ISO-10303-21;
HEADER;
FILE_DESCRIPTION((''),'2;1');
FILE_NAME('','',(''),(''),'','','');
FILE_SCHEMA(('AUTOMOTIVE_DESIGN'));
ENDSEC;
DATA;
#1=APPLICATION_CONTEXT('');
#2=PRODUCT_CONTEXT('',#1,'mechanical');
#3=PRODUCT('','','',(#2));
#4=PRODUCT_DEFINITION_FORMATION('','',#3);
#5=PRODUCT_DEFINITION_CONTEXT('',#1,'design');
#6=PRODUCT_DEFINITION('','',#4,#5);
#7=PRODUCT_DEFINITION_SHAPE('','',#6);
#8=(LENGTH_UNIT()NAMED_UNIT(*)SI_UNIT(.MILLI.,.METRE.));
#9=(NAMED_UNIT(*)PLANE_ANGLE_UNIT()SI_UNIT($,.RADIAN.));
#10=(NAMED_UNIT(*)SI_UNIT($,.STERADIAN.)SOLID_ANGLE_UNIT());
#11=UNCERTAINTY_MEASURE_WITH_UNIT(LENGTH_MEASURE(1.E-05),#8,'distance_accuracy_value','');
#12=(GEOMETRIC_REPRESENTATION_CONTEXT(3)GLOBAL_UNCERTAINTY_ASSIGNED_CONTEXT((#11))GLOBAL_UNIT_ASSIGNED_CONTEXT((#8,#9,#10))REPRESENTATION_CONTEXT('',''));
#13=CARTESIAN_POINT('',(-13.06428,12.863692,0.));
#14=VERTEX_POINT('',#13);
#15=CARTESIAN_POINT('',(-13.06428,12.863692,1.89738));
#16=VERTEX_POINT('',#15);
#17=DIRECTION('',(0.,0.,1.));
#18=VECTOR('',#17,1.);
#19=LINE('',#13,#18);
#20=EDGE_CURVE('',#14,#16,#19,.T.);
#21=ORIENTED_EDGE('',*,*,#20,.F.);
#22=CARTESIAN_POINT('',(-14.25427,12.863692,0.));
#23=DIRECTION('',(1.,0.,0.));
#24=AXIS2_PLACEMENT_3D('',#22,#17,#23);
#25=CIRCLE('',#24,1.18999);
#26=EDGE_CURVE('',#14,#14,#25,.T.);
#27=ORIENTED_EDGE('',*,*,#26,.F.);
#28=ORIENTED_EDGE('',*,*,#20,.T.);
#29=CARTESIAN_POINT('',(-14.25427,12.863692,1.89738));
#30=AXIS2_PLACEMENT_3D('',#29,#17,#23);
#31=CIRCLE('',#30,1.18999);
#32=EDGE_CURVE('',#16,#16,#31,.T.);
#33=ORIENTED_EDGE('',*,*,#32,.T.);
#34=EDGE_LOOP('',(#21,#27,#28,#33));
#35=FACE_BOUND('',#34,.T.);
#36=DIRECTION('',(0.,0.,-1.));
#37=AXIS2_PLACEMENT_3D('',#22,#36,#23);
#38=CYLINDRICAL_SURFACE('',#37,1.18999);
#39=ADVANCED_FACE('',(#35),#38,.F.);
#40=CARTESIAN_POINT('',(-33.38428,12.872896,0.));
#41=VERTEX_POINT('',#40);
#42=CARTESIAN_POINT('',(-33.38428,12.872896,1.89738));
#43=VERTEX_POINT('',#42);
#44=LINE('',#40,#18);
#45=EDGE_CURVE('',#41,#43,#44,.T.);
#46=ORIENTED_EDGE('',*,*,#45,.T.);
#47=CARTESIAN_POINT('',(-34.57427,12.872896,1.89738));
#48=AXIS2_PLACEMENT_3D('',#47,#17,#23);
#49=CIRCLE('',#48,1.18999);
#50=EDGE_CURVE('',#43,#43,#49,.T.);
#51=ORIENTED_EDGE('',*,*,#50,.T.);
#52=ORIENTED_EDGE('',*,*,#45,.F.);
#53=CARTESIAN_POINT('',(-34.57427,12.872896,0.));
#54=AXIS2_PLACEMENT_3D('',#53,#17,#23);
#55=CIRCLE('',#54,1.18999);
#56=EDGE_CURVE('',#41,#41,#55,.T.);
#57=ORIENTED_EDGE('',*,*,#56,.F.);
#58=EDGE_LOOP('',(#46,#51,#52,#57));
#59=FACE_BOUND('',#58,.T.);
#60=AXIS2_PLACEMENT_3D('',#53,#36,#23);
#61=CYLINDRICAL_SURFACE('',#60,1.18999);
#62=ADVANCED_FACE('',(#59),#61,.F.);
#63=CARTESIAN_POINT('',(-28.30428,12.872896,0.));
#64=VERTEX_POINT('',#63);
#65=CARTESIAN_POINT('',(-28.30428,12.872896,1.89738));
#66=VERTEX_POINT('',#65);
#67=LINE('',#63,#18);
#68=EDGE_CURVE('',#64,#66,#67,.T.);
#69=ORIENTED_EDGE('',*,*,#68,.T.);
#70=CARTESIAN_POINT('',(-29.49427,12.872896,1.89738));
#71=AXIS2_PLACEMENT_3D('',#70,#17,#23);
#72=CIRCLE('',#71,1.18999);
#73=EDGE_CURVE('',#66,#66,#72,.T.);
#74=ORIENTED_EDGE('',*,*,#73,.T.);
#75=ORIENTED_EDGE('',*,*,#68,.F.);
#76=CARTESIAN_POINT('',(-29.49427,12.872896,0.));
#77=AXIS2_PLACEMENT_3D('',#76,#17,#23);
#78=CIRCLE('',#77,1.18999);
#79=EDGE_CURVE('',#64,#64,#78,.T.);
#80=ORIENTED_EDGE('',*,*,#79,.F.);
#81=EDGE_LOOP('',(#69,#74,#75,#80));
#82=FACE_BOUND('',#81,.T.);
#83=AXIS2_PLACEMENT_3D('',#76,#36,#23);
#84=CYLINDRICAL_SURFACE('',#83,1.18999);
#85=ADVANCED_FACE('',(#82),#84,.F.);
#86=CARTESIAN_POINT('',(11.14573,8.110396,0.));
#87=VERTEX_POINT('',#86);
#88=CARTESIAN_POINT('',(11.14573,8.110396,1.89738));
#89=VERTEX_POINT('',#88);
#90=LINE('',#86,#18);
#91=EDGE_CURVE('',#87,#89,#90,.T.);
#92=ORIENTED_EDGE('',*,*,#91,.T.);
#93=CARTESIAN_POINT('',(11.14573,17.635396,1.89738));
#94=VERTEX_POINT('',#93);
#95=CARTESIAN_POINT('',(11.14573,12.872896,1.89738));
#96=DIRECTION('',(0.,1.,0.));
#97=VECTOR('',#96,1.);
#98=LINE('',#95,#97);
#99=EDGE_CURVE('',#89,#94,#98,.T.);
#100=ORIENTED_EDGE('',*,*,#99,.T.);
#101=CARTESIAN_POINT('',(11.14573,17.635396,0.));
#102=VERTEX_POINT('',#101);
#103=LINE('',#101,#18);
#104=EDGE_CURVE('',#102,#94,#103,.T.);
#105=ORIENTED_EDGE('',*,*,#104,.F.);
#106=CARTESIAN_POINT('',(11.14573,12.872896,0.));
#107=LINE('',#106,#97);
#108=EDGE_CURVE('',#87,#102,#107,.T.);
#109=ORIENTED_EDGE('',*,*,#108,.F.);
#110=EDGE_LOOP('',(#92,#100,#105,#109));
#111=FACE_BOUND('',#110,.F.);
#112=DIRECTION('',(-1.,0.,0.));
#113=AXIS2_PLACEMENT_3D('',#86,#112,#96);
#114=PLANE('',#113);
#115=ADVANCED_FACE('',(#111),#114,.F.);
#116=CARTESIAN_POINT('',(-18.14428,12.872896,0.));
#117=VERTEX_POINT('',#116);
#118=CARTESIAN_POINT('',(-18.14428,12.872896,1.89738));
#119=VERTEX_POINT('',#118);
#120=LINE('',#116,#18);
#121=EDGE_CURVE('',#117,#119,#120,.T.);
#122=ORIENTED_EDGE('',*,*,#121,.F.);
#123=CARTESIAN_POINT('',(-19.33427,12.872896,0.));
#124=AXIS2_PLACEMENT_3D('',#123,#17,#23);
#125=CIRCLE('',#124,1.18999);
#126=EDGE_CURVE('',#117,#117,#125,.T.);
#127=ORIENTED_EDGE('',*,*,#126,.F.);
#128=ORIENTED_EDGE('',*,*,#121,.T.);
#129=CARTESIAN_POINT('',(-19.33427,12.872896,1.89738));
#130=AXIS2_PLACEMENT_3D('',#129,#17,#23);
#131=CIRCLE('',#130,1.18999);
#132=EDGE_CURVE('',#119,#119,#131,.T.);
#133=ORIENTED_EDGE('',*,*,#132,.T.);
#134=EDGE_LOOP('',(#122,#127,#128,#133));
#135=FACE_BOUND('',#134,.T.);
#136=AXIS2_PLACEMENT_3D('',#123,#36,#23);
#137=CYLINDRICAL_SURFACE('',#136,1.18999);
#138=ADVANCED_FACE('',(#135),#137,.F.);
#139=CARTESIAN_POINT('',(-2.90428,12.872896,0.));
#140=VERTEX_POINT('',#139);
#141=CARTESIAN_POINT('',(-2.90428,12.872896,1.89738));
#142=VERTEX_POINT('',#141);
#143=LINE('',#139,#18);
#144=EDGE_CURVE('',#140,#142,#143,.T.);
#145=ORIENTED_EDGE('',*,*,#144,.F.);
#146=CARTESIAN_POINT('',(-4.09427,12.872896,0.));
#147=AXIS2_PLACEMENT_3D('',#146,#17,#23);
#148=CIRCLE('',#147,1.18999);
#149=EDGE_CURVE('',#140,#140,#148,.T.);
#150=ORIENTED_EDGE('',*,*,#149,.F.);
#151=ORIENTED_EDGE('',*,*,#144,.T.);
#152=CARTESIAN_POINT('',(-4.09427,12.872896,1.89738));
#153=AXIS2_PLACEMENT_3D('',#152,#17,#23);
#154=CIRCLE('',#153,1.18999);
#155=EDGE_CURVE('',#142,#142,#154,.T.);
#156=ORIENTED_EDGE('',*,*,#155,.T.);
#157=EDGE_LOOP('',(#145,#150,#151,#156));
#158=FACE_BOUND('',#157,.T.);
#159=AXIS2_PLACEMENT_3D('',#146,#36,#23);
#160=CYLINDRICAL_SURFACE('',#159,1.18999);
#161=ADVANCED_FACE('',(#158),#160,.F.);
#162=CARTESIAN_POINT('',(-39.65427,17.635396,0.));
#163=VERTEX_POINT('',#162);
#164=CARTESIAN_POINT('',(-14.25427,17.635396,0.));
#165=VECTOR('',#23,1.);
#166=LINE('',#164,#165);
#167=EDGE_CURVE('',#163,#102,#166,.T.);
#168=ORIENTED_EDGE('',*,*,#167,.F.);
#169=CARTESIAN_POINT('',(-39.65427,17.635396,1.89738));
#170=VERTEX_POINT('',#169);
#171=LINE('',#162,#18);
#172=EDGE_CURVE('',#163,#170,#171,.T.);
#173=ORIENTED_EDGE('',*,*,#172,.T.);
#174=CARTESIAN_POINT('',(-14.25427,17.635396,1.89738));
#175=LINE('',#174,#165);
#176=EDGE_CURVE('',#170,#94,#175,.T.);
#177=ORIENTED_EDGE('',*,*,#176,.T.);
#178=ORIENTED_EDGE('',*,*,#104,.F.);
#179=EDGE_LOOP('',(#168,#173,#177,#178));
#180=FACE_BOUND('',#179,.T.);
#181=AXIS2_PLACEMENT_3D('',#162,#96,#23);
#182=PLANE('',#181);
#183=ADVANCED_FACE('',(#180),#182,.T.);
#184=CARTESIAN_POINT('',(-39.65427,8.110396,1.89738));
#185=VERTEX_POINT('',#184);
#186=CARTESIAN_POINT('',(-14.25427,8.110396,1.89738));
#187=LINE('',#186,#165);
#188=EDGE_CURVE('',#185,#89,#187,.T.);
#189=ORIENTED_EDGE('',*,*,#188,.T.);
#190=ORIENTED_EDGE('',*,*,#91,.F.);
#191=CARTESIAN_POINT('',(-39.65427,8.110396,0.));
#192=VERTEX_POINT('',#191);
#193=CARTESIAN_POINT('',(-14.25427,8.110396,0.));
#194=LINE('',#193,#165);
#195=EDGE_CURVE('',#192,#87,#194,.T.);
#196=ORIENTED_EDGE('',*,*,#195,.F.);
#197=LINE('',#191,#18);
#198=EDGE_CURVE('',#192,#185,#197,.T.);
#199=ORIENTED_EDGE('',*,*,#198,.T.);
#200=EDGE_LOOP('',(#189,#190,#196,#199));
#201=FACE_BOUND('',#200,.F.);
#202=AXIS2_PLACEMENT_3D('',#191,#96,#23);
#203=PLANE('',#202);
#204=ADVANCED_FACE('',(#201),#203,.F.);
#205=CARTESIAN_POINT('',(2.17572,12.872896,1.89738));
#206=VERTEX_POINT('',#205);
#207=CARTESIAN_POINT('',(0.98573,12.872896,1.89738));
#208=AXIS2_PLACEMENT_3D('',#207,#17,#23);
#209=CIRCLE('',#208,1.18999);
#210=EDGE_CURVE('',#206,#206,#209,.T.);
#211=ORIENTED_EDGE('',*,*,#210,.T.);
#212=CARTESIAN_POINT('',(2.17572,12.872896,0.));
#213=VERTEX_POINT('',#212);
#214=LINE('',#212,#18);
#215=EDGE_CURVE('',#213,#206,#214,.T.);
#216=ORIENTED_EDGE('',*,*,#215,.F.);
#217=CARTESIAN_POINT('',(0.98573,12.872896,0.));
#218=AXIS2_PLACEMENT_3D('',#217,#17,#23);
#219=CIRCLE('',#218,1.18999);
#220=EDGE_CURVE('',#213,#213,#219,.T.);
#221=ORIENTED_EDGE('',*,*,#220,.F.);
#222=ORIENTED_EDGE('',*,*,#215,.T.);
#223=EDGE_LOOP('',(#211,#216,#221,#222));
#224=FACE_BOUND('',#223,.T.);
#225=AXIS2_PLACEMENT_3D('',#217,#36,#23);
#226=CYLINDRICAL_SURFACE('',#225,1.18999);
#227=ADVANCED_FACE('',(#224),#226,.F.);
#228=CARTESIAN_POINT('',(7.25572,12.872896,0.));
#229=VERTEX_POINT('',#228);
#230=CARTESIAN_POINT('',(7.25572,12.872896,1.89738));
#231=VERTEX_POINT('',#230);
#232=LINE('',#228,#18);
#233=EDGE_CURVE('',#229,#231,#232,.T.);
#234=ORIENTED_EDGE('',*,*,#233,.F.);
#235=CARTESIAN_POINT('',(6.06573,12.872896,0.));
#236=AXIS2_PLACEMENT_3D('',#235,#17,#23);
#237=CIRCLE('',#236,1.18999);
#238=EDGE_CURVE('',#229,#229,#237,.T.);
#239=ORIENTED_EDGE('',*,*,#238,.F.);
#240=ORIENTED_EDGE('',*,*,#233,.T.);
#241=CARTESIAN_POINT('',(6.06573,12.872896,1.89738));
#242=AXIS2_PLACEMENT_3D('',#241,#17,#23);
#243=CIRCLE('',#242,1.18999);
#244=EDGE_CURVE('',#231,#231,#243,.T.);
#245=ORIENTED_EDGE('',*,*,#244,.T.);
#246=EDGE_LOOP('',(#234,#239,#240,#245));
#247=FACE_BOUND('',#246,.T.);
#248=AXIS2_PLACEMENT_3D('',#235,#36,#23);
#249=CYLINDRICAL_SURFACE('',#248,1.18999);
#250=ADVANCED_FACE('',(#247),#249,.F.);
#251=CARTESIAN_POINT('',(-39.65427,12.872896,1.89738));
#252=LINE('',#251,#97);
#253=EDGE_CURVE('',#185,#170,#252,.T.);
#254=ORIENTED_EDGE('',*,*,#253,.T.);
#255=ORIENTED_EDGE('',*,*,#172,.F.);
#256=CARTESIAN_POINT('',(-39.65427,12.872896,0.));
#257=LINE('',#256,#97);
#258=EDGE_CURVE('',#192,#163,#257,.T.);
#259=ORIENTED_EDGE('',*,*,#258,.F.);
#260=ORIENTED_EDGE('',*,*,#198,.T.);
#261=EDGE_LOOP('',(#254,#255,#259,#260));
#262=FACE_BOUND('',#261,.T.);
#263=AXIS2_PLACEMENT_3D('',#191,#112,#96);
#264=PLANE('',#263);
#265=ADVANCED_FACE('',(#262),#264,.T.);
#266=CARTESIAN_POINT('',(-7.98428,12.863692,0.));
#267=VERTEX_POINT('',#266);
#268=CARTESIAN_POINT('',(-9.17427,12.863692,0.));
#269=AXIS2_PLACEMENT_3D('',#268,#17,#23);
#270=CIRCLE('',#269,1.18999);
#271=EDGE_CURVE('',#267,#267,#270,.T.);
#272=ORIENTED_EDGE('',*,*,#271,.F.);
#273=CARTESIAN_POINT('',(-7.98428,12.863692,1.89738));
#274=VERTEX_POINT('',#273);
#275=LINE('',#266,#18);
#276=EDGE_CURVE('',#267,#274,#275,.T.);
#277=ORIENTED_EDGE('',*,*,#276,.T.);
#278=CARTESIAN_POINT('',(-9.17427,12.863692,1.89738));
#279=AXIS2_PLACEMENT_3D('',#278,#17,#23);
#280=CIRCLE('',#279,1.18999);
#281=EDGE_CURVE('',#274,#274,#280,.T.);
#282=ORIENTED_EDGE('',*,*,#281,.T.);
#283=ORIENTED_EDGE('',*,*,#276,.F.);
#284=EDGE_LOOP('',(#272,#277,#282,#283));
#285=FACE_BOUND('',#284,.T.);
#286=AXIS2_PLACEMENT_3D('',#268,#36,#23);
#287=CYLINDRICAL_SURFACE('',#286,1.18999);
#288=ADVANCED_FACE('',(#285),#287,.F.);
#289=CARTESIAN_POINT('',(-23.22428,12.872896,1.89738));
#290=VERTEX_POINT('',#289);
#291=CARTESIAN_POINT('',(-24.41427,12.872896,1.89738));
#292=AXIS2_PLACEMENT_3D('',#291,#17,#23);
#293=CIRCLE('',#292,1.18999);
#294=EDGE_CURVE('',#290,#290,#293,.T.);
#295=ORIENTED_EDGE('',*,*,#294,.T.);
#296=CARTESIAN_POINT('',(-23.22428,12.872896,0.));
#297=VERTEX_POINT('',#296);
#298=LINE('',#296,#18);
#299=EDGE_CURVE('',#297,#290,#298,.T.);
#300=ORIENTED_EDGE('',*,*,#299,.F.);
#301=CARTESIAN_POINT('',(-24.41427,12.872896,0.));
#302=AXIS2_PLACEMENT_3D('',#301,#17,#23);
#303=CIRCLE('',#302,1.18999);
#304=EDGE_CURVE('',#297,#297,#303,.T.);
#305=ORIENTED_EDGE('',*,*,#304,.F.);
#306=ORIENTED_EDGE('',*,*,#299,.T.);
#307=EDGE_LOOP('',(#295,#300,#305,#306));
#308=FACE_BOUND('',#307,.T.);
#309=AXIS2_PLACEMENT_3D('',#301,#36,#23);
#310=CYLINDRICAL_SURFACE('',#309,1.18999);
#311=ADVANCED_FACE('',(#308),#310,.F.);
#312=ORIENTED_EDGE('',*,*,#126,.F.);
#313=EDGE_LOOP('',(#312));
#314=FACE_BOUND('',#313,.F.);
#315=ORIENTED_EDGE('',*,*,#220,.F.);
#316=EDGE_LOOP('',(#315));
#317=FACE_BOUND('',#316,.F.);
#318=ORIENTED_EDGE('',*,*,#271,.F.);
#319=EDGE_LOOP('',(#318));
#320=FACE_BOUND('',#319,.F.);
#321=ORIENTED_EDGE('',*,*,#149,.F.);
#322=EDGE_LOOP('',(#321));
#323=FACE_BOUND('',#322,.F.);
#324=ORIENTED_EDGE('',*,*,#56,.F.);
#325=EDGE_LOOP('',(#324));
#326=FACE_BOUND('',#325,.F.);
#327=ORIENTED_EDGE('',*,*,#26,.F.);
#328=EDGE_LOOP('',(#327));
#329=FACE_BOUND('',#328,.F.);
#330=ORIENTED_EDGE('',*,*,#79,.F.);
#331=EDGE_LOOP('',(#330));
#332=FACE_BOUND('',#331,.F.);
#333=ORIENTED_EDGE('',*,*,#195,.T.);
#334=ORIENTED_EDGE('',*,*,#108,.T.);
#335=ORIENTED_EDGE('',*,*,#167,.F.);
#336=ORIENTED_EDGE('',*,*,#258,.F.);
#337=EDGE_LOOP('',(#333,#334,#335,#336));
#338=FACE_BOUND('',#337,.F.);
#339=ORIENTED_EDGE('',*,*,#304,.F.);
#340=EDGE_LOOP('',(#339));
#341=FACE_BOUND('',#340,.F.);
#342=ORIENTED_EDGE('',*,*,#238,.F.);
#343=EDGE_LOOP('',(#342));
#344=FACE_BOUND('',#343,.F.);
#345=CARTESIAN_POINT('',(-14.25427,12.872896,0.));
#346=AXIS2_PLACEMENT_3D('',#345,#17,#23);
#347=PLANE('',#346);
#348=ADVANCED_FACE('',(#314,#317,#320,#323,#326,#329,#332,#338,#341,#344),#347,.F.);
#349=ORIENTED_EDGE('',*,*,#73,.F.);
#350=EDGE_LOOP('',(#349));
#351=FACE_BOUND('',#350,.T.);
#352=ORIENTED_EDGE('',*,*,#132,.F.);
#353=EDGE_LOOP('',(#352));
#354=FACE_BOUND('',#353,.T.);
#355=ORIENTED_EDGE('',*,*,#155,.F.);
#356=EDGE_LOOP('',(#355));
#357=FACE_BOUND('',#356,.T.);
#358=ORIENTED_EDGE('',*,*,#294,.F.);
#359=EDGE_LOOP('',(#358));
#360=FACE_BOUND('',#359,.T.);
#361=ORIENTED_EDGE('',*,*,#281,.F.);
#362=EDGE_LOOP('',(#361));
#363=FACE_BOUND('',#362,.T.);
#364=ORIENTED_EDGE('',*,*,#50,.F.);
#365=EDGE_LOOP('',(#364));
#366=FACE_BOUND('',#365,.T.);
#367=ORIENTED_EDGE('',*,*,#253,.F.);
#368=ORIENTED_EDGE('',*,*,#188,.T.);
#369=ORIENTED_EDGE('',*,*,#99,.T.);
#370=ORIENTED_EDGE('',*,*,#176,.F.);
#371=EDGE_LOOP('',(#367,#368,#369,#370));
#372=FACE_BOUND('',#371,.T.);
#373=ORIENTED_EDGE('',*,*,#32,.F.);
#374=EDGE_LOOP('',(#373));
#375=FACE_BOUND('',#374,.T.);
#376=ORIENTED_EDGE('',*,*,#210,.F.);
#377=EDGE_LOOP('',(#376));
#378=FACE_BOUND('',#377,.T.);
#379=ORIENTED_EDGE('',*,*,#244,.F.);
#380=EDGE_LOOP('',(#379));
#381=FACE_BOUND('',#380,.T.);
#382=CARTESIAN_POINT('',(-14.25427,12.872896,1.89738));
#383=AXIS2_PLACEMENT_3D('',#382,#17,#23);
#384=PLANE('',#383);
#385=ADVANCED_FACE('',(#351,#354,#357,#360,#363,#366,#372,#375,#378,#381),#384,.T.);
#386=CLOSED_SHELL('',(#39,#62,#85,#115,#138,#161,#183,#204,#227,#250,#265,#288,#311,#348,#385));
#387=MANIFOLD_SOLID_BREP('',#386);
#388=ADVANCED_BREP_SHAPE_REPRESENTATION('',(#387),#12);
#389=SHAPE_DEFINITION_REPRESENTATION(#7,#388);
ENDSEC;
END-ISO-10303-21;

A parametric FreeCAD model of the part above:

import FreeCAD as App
import Part
import Sketcher
from FreeCAD import Vector
Q = App.Units.Quantity


def add_polygon(sketch, points):
    """Adds a closed chain of lines whose ends are joined by coincident constraints."""
    first, n = sketch.GeometryCount, len(points)
    for a, b in zip(points, points[1:] + points[:1]):
        sketch.addGeometry(Part.LineSegment(App.Vector(*a, 0), App.Vector(*b, 0)), False)
    for i in range(n):
        sketch.addConstraint(Sketcher.Constraint("Coincident", first + i, 2, first + (i + 1) % n, 1))

doc = App.newDocument("Part")
body = doc.addObject("PartDesign::Body", "Body")

# Sketch on XY plane
sketch1 = body.newObject("Sketcher::SketchObject", "Sketch")
sketch1.AttachmentSupport = (doc.getObject("XY_Plane"), [""])
sketch1.MapMode = "FlatFace"
add_polygon(sketch1, [(-39.65427, 17.635396), (-39.65427, 8.110396), (11.14573, 8.110396), (11.14573, 17.635396)])  # lines 0-3
sketch1.addGeometry(Part.Circle(Vector(-14.25427, 12.863692, 0), Vector(0, 0, 1), 1.18999), False)  # 4
sketch1.addGeometry(Part.Circle(Vector(-9.17427, 12.863692, 0), Vector(0, 0, 1), 1.18999), False)  # 5
sketch1.addGeometry(Part.Circle(Vector(-34.57427, 12.872896, 0), Vector(0, 0, 1), 1.18999), False)  # 6
sketch1.addGeometry(Part.Circle(Vector(-29.49427, 12.872896, 0), Vector(0, 0, 1), 1.18999), False)  # 7
sketch1.addGeometry(Part.Circle(Vector(-24.41427, 12.872896, 0), Vector(0, 0, 1), 1.18999), False)  # 8
sketch1.addGeometry(Part.Circle(Vector(-19.33427, 12.872896, 0), Vector(0, 0, 1), 1.18999), False)  # 9
sketch1.addGeometry(Part.Circle(Vector(-4.09427, 12.872896, 0), Vector(0, 0, 1), 1.18999), False)  # 10
sketch1.addGeometry(Part.Circle(Vector(0.98573, 12.872896, 0), Vector(0, 0, 1), 1.18999), False)  # 11
sketch1.addGeometry(Part.Circle(Vector(6.06573, 12.872896, 0), Vector(0, 0, 1), 1.18999), False)  # 12
sketch1.addConstraint(Sketcher.Constraint("Vertical", 0))
sketch1.addConstraint(Sketcher.Constraint("Horizontal", 1))
sketch1.addConstraint(Sketcher.Constraint("Vertical", 2))
sketch1.addConstraint(Sketcher.Constraint("Horizontal", 3))
sketch1.addConstraint(Sketcher.Constraint("Equal", 4, 5))
sketch1.addConstraint(Sketcher.Constraint("Equal", 5, 6))
sketch1.addConstraint(Sketcher.Constraint("Equal", 6, 7))
sketch1.addConstraint(Sketcher.Constraint("Equal", 7, 8))
sketch1.addConstraint(Sketcher.Constraint("Equal", 8, 9))
sketch1.addConstraint(Sketcher.Constraint("Equal", 9, 10))
sketch1.addConstraint(Sketcher.Constraint("Equal", 10, 11))
sketch1.addConstraint(Sketcher.Constraint("Equal", 11, 12))
sketch1.addConstraint(Sketcher.Constraint("Horizontal", 4, 3, 5, 3))
sketch1.addConstraint(Sketcher.Constraint("Horizontal", 6, 3, 7, 3))
sketch1.addConstraint(Sketcher.Constraint("Horizontal", 7, 3, 8, 3))
sketch1.addConstraint(Sketcher.Constraint("Horizontal", 8, 3, 9, 3))
sketch1.addConstraint(Sketcher.Constraint("Horizontal", 9, 3, 10, 3))
sketch1.addConstraint(Sketcher.Constraint("Horizontal", 10, 3, 11, 3))
sketch1.addConstraint(Sketcher.Constraint("Horizontal", 11, 3, 12, 3))
sketch1.addConstraint(Sketcher.Constraint("DistanceX", 1, 1, 1, 2, Q("2 in")))
sketch1.addConstraint(Sketcher.Constraint("DistanceX", 6, 3, 5, 3, Q("1 in")))
sketch1.addConstraint(Sketcher.Constraint("DistanceX", 7, 3, 10, 3, Q("1 in")))
sketch1.addConstraint(Sketcher.Constraint("DistanceX", 8, 3, 11, 3, Q("1 in")))
sketch1.addConstraint(Sketcher.Constraint("DistanceX", 9, 3, 12, 3, Q("1 in")))
sketch1.addConstraint(Sketcher.Constraint("DistanceX", 0, 2, 4, 3, Q("1 in")))
sketch1.addConstraint(Sketcher.Constraint("Diameter", 4, Q("0.0937 in")))
sketch1.addConstraint(Sketcher.Constraint("DistanceX", 4, 3, 5, 3, Q("0.2 in")))
sketch1.addConstraint(Sketcher.Constraint("DistanceX", 6, 3, 7, 3, Q("0.2 in")))
sketch1.addConstraint(Sketcher.Constraint("DistanceX", 7, 3, 8, 3, Q("0.2 in")))
sketch1.addConstraint(Sketcher.Constraint("DistanceX", 8, 3, 9, 3, Q("0.2 in")))
sketch1.addConstraint(Sketcher.Constraint("DistanceY", 0, 2, 0, 1, Q("0.375 in")))
sketch1.addConstraint(Sketcher.Constraint("DistanceY", 0, 2, 6, 3, Q("0.1875 in")))
sketch1.addConstraint(Sketcher.Constraint("DistanceX", 4, 3, -1, 1, Q("14.25427 mm")))
sketch1.addConstraint(Sketcher.Constraint("DistanceY", -1, 1, 4, 3, Q("12.863692 mm")))
sketch1.addConstraint(Sketcher.Constraint("DistanceY", -1, 1, 6, 3, Q("12.872896 mm")))
pad1 = body.newObject("PartDesign::Pad", "Pad")
pad1.Profile = sketch1
pad1.Length = Q("0.0747 in")

doc.recompute()
